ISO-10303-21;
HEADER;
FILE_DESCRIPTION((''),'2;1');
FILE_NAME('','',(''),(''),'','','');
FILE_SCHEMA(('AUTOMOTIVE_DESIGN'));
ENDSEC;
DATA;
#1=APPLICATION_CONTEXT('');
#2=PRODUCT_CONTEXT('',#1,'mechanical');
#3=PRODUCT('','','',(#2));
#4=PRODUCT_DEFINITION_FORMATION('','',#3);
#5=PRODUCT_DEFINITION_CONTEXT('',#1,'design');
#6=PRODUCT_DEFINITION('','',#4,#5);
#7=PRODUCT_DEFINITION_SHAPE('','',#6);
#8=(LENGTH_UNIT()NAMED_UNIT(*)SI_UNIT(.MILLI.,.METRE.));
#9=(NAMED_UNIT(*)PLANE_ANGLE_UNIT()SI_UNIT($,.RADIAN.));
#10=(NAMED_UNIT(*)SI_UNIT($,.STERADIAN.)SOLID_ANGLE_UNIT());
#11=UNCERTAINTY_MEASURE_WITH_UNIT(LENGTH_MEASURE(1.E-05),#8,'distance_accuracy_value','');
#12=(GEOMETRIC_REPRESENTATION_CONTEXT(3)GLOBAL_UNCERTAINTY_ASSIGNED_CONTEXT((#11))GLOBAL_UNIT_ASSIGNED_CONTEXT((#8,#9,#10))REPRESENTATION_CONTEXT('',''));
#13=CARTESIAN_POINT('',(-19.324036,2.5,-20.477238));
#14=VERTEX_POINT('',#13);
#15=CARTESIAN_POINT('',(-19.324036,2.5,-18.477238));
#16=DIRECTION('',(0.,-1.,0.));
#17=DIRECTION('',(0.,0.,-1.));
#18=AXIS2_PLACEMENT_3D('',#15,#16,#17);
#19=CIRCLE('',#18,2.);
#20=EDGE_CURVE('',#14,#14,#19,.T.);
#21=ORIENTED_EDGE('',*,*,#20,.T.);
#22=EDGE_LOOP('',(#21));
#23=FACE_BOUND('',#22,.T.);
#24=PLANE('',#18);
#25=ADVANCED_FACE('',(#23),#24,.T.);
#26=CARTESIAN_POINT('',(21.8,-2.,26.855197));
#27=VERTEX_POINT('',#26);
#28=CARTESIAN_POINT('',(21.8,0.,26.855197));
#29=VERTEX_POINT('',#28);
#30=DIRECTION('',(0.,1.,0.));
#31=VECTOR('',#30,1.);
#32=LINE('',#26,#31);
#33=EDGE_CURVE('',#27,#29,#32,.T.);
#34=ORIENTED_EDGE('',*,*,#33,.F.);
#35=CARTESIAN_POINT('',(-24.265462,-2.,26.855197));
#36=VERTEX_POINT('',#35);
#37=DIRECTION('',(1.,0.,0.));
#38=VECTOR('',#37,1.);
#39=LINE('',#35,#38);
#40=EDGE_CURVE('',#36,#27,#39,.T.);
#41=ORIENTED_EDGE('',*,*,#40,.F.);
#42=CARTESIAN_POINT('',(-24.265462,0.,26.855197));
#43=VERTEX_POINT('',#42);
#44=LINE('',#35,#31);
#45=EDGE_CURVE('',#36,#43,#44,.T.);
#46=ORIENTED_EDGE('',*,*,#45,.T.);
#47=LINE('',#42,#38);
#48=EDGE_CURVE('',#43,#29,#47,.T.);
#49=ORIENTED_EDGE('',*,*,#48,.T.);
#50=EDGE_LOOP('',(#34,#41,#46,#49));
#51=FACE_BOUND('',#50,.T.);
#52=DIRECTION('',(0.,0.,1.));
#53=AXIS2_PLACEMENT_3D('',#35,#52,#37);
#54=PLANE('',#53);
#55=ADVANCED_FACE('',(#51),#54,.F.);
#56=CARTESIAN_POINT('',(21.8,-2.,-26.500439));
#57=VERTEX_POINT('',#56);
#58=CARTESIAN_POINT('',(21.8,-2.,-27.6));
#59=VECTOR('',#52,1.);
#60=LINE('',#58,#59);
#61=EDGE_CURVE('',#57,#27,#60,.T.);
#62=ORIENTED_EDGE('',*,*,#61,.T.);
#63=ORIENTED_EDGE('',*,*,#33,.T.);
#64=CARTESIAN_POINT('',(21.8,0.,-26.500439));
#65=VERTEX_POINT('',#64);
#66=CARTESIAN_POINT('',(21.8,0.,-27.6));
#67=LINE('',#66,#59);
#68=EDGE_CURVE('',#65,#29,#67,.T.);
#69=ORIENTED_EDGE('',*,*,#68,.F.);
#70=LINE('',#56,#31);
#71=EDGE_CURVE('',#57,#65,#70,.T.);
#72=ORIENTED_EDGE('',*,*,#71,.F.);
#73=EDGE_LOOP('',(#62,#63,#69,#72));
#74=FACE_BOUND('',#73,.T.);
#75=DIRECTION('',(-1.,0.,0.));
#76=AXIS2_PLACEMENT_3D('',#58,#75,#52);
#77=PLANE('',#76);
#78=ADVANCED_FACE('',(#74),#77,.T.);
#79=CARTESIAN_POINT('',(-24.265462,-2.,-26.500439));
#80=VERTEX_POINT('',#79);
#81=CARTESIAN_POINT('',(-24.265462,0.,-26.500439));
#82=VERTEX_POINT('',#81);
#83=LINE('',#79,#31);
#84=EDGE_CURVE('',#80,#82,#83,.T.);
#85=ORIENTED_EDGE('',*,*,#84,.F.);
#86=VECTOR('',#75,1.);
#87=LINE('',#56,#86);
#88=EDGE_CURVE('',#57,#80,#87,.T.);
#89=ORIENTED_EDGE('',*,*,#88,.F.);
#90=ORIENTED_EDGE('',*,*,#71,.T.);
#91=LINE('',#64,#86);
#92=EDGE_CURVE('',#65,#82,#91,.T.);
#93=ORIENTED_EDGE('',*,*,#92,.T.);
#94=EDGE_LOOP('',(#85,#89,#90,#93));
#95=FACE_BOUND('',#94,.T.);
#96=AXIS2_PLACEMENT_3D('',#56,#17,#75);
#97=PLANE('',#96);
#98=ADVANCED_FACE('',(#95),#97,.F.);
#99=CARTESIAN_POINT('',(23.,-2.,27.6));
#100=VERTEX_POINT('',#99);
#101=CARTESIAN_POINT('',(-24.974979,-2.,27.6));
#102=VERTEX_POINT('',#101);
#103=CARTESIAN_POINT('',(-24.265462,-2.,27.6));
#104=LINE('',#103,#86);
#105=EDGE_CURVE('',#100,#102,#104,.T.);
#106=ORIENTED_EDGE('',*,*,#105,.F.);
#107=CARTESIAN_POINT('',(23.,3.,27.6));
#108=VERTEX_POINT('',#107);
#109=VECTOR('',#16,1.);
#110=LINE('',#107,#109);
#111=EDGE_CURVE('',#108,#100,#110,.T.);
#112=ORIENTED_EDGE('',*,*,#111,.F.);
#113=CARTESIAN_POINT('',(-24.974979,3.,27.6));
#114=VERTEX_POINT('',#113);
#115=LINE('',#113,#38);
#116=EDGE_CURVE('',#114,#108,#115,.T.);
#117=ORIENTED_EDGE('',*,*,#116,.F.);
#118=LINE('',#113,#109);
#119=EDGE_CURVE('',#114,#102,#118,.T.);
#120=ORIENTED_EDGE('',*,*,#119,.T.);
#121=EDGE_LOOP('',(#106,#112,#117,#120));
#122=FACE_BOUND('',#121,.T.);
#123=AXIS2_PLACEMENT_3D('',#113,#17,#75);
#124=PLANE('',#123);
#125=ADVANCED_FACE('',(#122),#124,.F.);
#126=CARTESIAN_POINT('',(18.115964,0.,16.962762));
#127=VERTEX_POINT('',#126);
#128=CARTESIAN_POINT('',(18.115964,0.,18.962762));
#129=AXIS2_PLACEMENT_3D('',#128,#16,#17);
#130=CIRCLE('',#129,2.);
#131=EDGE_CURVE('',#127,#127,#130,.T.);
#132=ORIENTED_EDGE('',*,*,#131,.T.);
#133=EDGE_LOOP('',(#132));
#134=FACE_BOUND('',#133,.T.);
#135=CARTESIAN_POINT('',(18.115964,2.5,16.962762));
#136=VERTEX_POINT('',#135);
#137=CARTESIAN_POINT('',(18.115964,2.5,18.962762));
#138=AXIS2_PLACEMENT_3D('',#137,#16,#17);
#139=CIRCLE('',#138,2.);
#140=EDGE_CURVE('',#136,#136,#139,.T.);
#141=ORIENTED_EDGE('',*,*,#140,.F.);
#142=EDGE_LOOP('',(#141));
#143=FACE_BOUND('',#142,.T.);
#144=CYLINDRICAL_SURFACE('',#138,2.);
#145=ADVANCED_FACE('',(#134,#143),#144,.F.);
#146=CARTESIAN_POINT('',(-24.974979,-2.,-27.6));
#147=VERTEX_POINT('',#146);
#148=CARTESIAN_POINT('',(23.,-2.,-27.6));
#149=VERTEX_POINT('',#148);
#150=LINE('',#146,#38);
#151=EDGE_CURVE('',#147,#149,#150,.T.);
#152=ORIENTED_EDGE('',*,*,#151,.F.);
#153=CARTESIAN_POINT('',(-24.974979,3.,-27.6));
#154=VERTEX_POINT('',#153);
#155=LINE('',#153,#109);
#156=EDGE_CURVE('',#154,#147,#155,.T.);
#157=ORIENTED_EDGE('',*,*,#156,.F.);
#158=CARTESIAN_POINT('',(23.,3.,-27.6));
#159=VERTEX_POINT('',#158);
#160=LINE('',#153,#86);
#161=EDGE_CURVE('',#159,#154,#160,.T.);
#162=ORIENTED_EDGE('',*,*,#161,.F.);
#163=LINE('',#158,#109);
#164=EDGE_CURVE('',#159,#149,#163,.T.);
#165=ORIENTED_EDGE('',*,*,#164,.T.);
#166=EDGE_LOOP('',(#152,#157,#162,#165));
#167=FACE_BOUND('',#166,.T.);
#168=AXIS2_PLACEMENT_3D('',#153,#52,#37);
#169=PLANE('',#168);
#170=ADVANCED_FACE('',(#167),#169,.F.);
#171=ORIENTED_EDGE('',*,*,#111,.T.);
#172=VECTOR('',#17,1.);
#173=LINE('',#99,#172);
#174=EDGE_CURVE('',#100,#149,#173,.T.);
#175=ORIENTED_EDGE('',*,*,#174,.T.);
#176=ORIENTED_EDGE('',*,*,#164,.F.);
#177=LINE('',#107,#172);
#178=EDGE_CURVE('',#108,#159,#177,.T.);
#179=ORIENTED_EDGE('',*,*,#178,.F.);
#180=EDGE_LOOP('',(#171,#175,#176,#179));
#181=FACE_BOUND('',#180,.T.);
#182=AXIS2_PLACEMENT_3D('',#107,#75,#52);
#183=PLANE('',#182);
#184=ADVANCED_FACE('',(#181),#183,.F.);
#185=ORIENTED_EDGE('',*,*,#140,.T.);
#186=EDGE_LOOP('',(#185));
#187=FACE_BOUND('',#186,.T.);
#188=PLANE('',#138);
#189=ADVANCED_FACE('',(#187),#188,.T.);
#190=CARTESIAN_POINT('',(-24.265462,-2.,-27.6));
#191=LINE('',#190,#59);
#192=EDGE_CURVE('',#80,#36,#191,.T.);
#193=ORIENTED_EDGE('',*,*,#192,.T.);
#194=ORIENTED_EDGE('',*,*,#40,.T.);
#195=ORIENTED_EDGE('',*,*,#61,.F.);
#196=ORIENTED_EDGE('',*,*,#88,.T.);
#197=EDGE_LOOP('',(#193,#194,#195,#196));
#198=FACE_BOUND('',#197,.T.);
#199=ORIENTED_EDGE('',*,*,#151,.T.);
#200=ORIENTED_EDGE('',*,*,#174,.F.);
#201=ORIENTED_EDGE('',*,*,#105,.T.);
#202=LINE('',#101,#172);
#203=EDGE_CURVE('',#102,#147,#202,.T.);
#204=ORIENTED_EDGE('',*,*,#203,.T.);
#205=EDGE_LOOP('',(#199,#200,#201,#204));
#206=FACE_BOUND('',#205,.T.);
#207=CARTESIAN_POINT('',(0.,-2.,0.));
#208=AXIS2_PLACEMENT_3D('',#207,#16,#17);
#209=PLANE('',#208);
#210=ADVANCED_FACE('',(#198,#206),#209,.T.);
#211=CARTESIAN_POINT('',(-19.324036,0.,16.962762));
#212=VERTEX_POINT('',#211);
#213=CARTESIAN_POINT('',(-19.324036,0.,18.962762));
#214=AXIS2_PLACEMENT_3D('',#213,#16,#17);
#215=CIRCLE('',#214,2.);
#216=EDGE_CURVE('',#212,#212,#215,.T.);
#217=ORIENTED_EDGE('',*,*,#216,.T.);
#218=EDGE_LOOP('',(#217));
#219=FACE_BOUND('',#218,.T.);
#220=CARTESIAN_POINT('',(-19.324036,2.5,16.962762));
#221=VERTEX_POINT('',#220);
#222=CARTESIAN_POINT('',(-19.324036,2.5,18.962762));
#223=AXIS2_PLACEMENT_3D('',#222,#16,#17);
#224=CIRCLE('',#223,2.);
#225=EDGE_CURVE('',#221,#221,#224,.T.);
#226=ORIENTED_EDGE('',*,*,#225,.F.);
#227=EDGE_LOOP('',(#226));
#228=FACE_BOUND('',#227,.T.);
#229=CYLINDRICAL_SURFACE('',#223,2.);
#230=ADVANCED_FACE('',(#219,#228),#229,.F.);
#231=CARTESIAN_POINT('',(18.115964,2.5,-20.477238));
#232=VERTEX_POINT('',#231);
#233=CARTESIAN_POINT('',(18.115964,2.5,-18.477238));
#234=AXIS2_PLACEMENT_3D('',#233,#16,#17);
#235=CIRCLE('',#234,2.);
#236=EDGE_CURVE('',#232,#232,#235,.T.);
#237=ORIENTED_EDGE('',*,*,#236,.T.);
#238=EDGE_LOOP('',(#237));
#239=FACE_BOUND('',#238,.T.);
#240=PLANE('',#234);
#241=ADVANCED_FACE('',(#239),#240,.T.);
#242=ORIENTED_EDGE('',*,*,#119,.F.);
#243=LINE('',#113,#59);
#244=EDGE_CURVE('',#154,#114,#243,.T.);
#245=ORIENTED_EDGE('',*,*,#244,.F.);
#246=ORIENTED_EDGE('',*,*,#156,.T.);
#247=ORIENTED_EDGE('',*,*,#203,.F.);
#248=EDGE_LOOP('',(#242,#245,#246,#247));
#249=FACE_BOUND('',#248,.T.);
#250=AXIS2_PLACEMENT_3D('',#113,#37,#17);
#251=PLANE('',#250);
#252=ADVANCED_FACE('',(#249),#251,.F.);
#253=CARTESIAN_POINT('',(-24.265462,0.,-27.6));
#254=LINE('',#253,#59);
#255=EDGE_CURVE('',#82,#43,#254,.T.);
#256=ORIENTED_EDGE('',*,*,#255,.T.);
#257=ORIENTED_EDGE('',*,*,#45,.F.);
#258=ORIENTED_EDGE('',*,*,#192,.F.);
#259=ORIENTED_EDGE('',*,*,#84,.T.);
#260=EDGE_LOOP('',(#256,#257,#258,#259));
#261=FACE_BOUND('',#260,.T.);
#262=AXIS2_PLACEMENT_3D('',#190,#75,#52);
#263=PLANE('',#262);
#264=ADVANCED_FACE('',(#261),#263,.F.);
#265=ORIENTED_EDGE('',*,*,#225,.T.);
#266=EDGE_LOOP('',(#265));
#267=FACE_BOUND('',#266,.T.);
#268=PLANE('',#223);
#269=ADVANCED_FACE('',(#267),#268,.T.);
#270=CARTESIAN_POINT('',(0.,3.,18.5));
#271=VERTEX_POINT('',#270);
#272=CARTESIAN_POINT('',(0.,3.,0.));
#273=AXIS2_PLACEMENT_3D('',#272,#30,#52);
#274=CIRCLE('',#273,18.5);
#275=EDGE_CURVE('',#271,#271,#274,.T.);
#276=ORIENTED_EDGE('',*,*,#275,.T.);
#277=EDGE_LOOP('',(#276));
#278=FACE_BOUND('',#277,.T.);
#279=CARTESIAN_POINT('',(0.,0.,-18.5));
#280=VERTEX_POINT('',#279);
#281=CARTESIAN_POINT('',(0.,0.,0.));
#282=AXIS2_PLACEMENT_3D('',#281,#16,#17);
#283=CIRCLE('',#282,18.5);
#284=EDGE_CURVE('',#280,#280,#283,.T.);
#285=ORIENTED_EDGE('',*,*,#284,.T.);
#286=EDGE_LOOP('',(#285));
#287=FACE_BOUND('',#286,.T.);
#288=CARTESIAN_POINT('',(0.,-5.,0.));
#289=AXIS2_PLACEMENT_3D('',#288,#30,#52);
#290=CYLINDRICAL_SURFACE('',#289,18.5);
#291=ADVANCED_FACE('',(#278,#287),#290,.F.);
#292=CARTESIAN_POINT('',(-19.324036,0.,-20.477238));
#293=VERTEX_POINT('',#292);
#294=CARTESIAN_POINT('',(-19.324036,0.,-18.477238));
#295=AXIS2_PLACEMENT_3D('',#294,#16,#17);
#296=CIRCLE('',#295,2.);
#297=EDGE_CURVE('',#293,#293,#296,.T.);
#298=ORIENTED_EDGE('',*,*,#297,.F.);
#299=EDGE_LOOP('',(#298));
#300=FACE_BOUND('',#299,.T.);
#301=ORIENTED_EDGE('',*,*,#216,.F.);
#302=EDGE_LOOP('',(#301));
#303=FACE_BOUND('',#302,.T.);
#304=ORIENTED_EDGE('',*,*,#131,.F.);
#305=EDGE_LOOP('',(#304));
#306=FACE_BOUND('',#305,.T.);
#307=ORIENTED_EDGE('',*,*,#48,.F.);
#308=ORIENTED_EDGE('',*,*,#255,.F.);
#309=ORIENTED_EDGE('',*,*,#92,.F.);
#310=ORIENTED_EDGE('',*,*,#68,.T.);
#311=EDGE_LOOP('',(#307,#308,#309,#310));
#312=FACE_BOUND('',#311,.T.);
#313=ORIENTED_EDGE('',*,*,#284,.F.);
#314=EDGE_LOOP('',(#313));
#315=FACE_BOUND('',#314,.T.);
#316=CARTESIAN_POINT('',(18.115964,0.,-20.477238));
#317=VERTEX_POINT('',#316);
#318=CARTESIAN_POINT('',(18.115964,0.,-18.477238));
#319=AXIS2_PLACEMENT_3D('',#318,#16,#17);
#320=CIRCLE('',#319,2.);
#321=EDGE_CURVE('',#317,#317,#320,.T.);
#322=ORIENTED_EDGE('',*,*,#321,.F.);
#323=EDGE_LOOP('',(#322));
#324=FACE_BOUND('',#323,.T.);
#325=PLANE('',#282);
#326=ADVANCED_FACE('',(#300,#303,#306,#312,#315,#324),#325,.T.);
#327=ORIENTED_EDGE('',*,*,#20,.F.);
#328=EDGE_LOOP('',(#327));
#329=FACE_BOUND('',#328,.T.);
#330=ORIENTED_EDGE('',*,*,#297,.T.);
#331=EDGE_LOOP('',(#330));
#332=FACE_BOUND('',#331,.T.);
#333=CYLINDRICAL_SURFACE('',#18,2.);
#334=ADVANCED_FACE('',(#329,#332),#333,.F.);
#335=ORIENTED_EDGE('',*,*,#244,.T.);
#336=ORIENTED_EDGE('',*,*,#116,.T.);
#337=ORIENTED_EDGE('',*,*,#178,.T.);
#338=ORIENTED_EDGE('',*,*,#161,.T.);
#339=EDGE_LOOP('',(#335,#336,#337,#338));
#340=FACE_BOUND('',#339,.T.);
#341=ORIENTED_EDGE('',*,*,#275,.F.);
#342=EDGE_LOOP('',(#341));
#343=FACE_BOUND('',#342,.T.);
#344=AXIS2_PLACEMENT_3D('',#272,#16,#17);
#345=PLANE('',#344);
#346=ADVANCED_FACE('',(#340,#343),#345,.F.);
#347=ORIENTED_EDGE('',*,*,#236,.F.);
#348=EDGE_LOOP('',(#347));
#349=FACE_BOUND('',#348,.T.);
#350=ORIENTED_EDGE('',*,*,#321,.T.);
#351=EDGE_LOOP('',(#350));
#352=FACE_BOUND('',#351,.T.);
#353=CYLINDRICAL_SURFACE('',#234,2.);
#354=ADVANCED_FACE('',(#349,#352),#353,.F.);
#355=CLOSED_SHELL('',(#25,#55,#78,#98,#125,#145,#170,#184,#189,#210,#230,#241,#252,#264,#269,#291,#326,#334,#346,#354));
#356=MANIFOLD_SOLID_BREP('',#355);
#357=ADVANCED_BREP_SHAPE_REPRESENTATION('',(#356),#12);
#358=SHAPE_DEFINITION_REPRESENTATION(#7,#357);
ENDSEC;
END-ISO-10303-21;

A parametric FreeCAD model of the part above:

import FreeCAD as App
import Part
import Sketcher

doc = App.newDocument("Part")
body = doc.addObject("PartDesign::Body", "Body")

# Sketch on XZ plane
sketch1 = doc.addObject("Sketcher::SketchObject", "Sketch")
body.addObject(sketch1)
sketch1.AttachmentSupport = (doc.XZ_Plane, [""])
sketch1.MapMode = "FlatFace"
sketch1.addGeometry([
    Part.LineSegment(App.Vector(-25, -28, 0), App.Vector(-25, 28, 0)),
    Part.LineSegment(App.Vector(-25, 28, 0), App.Vector(23, 28, 0)),
    Part.LineSegment(App.Vector(23, 28, 0), App.Vector(23, -28, 0)),
    Part.LineSegment(App.Vector(23, -28, 0), App.Vector(-25, -28, 0)),
], False)
sketch1.addConstraint([
    Sketcher.Constraint("Coincident", 0, 2, 1, 1),
    Sketcher.Constraint("Coincident", 1, 2, 2, 1),
    Sketcher.Constraint("Coincident", 2, 2, 3, 1),
    Sketcher.Constraint("Coincident", 3, 2, 0, 1),
    Sketcher.Constraint("Vertical", 0),
    Sketcher.Constraint("Horizontal", 1),
    Sketcher.Constraint("Vertical", 2),
    Sketcher.Constraint("Horizontal", 3),
    Sketcher.Constraint("DistanceY", 0, 1, 0, 2, 55.2),
    Sketcher.Constraint("DistanceX", -1, 1, 1, 2, 23.0),
    Sketcher.Constraint("DistanceY", -1, 1, 0, 2, 27.6),
    Sketcher.Constraint("DistanceX", 1, 1, 1, 2, 47.974979),
])
pad1 = doc.addObject("PartDesign::Pad", "Pad")
body.addObject(pad1)
pad1.Profile = sketch1
pad1.Length = 3
pad1.Reversed = True

# Sketch on XZ plane
sketch2 = doc.addObject("Sketcher::SketchObject", "Sketch001")
body.addObject(sketch2)
sketch2.AttachmentSupport = (doc.XZ_Plane, [""])
sketch2.MapMode = "FlatFace"
sketch2.AttachmentOffset = App.Placement(App.Vector(0, 0, -3), App.Rotation())
sketch2.addGeometry(Part.Circle(App.Vector(0, 0, 0), App.Vector(0, 0, 1), 18), False)
sketch2.addConstraint([
    Sketcher.Constraint("Coincident", 0, 3, -1, 1),
    Sketcher.Constraint("Diameter", 0, 37.0),
])
pocket1 = doc.addObject("PartDesign::Pocket", "Pocket")
body.addObject(pocket1)
pocket1.Profile = sketch2
pocket1.Length = 8
pocket1.Reversed = True

# Sketch on XZ plane
sketch3 = doc.addObject("Sketcher::SketchObject", "Sketch002")
body.addObject(sketch3)
sketch3.AttachmentSupport = (doc.XZ_Plane, [""])
sketch3.MapMode = "FlatFace"
sketch3.addGeometry([
    Part.LineSegment(App.Vector(-25, 27.6, 0), App.Vector(-25, -27.6, 0)),  # 0
    Part.LineSegment(App.Vector(-25, -27.6, 0), App.Vector(-24.3, -27.6, 0)),  # 1
    Part.LineSegment(App.Vector(-24.3, -27.6, 0), App.Vector(-24.3, 27.6, 0)),  # 2
    Part.LineSegment(App.Vector(-24.3, 27.6, 0), App.Vector(-25, 27.6, 0)),  # 3
    Part.LineSegment(App.Vector(21.8, 27.6, 0), App.Vector(21.8, -27.6, 0)),  # 4
    Part.LineSegment(App.Vector(21.8, -27.6, 0), App.Vector(23, -27.6, 0)),  # 5
    Part.LineSegment(App.Vector(23, -27.6, 0), App.Vector(23, 27.6, 0)),  # 6
    Part.LineSegment(App.Vector(23, 27.6, 0), App.Vector(21.8, 27.6, 0)),  # 7
], False)
sketch3.addConstraint([
    Sketcher.Constraint("Coincident", 0, 2, 1, 1),
    Sketcher.Constraint("Coincident", 1, 2, 2, 1),
    Sketcher.Constraint("Coincident", 2, 2, 3, 1),
    Sketcher.Constraint("Coincident", 3, 2, 0, 1),
    Sketcher.Constraint("Coincident", 4, 2, 5, 1),
    Sketcher.Constraint("Coincident", 5, 2, 6, 1),
    Sketcher.Constraint("Coincident", 6, 2, 7, 1),
    Sketcher.Constraint("Coincident", 7, 2, 4, 1),
    Sketcher.Constraint("Vertical", 0),
    Sketcher.Constraint("Horizontal", 1),
    Sketcher.Constraint("Vertical", 2),
    Sketcher.Constraint("Horizontal", 3),
    Sketcher.Constraint("Vertical", 4),
    Sketcher.Constraint("Horizontal", 5),
    Sketcher.Constraint("Vertical", 6),
    Sketcher.Constraint("Horizontal", 7),
    Sketcher.Constraint("Horizontal", 1, 2, 4, 2),
    Sketcher.Constraint("Horizontal", 3, 2, 6, 2),
    Sketcher.Constraint("DistanceX", 5, 1, 5, 2, 1.2),
    Sketcher.Constraint("DistanceY", 0, 2, 0, 1, 55.2),
    Sketcher.Constraint("DistanceX", -1, 1, 5, 2, 23.0),
    Sketcher.Constraint("DistanceY", 0, 2, -1, 1, 27.6),
    Sketcher.Constraint("DistanceX", 1, 1, 1, 2, 0.709516),
    Sketcher.Constraint("DistanceX", 0, 2, -1, 1, 24.974979),
])
pad2 = doc.addObject("PartDesign::Pad", "Pad001")
body.addObject(pad2)
pad2.Profile = sketch3
pad2.Length = 2

# Sketch on XZ plane
sketch4 = doc.addObject("Sketcher::SketchObject", "Sketch003")
body.addObject(sketch4)
sketch4.AttachmentSupport = (doc.XZ_Plane, [""])
sketch4.MapMode = "FlatFace"
sketch4.addGeometry([
    Part.LineSegment(App.Vector(-24.3, 27.6, 0), App.Vector(-24.3, 26.9, 0)),  # 0
    Part.LineSegment(App.Vector(-24.3, 26.9, 0), App.Vector(21.8, 26.9, 0)),  # 1
    Part.LineSegment(App.Vector(21.8, 26.9, 0), App.Vector(21.8, 27.6, 0)),  # 2
    Part.LineSegment(App.Vector(21.8, 27.6, 0), App.Vector(-24.3, 27.6, 0)),  # 3
    Part.LineSegment(App.Vector(-24.3, -26.5, 0), App.Vector(-24.3, -27.6, 0)),  # 4
    Part.LineSegment(App.Vector(-24.3, -27.6, 0), App.Vector(21.8, -27.6, 0)),  # 5
    Part.LineSegment(App.Vector(21.8, -27.6, 0), App.Vector(21.8, -26.5, 0)),  # 6
    Part.LineSegment(App.Vector(21.8, -26.5, 0), App.Vector(-24.3, -26.5, 0)),  # 7
], False)
sketch4.addConstraint([
    Sketcher.Constraint("Coincident", 0, 2, 1, 1),
    Sketcher.Constraint("Coincident", 1, 2, 2, 1),
    Sketcher.Constraint("Coincident", 2, 2, 3, 1),
    Sketcher.Constraint("Coincident", 3, 2, 0, 1),
    Sketcher.Constraint("Coincident", 4, 2, 5, 1),
    Sketcher.Constraint("Coincident", 5, 2, 6, 1),
    Sketcher.Constraint("Coincident", 6, 2, 7, 1),
    Sketcher.Constraint("Coincident", 7, 2, 4, 1),
    Sketcher.Constraint("Vertical", 0),
    Sketcher.Constraint("Horizontal", 1),
    Sketcher.Constraint("Vertical", 2),
    Sketcher.Constraint("Horizontal", 3),
    Sketcher.Constraint("Vertical", 4),
    Sketcher.Constraint("Horizontal", 5),
    Sketcher.Constraint("Vertical", 6),
    Sketcher.Constraint("Horizontal", 7),
    Sketcher.Constraint("Symmetric", 3, 2, 4, 2, -1),
    Sketcher.Constraint("Vertical", 2, 2, 5, 2),
    Sketcher.Constraint("DistanceX", -1, 1, 1, 2, 21.8),
    Sketcher.Constraint("DistanceY", -1, 1, 2, 2, 27.6),
    Sketcher.Constraint("DistanceY", 4, 2, 4, 1, 1.099561),
    Sketcher.Constraint("DistanceX", 1, 1, 1, 2, 46.065462),
    Sketcher.Constraint("DistanceY", 0, 2, 0, 1, 0.744803),
])
pad3 = doc.addObject("PartDesign::Pad", "Pad002")
body.addObject(pad3)
pad3.Profile = sketch4
pad3.Length = 2

# Sketch on XZ plane
sketch5 = doc.addObject("Sketcher::SketchObject", "Sketch004")
body.addObject(sketch5)
sketch5.AttachmentSupport = (doc.XZ_Plane, [""])
sketch5.MapMode = "FlatFace"
sketch5.addGeometry([
    Part.Circle(App.Vector(-19.3, 19, 0), App.Vector(0, 0, 1), 2),
    Part.Circle(App.Vector(18.1, 19, 0), App.Vector(0, 0, 1), 2),
    Part.Circle(App.Vector(-19.3, -18.5, 0), App.Vector(0, 0, 1), 2),
    Part.Circle(App.Vector(18.1, -18.5, 0), App.Vector(0, 0, 1), 2),
], False)
sketch5.addConstraint([
    Sketcher.Constraint("Equal", 0, 1),
    Sketcher.Constraint("Equal", 1, 2),
    Sketcher.Constraint("Equal", 2, 3),
    Sketcher.Constraint("Horizontal", 0, 3, 1, 3),
    Sketcher.Constraint("Horizontal", 2, 3, 3, 3),
    Sketcher.Constraint("Vertical", 0, 3, 2, 3),
    Sketcher.Constraint("Vertical", 1, 3, 3, 3),
    Sketcher.Constraint("Diameter", 0, 4.0),
    Sketcher.Constraint("DistanceX", 0, 3, 1, 3, 37.44),
    Sketcher.Constraint("DistanceY", 2, 3, 0, 3, 37.44),
    Sketcher.Constraint("DistanceY", -1, 1, 0, 3, 18.962762),
    Sketcher.Constraint("DistanceX", 0, 3, -1, 1, 19.324036),
])
pocket2 = doc.addObject("PartDesign::Pocket", "Pocket001")
body.addObject(pocket2)
pocket2.Profile = sketch5
pocket2.Length = 2.5

doc.recompute()
